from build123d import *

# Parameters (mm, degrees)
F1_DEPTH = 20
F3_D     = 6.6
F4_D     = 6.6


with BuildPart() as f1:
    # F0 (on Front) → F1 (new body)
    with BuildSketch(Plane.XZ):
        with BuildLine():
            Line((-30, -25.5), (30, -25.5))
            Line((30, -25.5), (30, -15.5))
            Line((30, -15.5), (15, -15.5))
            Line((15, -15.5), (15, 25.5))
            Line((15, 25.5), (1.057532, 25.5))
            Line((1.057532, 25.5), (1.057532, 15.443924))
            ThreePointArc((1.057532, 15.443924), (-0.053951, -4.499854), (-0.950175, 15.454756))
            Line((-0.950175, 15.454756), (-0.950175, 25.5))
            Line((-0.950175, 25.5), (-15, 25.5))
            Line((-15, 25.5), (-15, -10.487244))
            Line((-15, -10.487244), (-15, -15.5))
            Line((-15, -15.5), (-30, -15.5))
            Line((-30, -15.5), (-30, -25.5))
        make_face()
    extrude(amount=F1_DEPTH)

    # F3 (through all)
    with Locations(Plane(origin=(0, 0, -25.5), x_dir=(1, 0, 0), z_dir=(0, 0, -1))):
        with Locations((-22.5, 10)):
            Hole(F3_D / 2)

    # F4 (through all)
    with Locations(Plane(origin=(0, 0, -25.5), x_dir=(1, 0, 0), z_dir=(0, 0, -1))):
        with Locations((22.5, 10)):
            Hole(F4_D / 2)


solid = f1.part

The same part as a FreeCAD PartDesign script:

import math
import FreeCAD as App
import Part
import Sketcher

V = App.Vector
Q = App.Units.Quantity

doc = App.newDocument("Part")
body = doc.addObject("PartDesign::Body", "Body")

sketch1 = doc.addObject("Sketcher::SketchObject", "Sketch")
body.addObject(sketch1)
sketch1.AttachmentSupport = (doc.XZ_Plane, [""])
sketch1.MapMode = "FlatFace"
sketch1.addGeometry([
    Part.LineSegment(V(-30, -25.5, 0), V(30, -25.5, 0)),
    Part.LineSegment(V(30, -25.5, 0), V(30, -15.5, 0)),
    Part.LineSegment(V(30, -15.5, 0), V(15, -15.5, 0)),
    Part.LineSegment(V(15, -15.5, 0), V(15, 25.5, 0)),
    Part.LineSegment(V(15, 25.5, 0), V(1.1, 25.5, 0)),
    Part.LineSegment(V(1.1, 25.5, 0), V(1.1, 15.4, 0)),
    Part.ArcOfCircle(Part.Circle(V(0, 5.5, 0), V(0, 0, 1), 10), math.radians(95), math.radians(444)),
    Part.LineSegment(V(-1, 15.5, 0), V(-1, 25.5, 0)),
    Part.LineSegment(V(-1, 25.5, 0), V(-15, 25.5, 0)),
    Part.LineSegment(V(-15, 25.5, 0), V(-15, -15.5, 0)),
    Part.LineSegment(V(-15, -15.5, 0), V(-30, -15.5, 0)),
    Part.LineSegment(V(-30, -15.5, 0), V(-30, -25.5, 0)),
], False)
sketch1.addConstraint([
    Sketcher.Constraint("Coincident", 0, 2, 1, 1),
    Sketcher.Constraint("Coincident", 1, 2, 2, 1),
    Sketcher.Constraint("Coincident", 2, 2, 3, 1),
    Sketcher.Constraint("Coincident", 3, 2, 4, 1),
    Sketcher.Constraint("Coincident", 4, 2, 5, 1),
    Sketcher.Constraint("Coincident", 5, 2, 6, 2),
    Sketcher.Constraint("Coincident", 6, 1, 7, 1),
    Sketcher.Constraint("Coincident", 7, 2, 8, 1),
    Sketcher.Constraint("Coincident", 8, 2, 9, 1),
    Sketcher.Constraint("Coincident", 9, 2, 10, 1),
    Sketcher.Constraint("Coincident", 10, 2, 11, 1),
    Sketcher.Constraint("Coincident", 11, 2, 0, 1),
    Sketcher.Constraint("Horizontal", 0),
    Sketcher.Constraint("Vertical", 1),
    Sketcher.Constraint("Horizontal", 2),
    Sketcher.Constraint("Vertical", 3),
    Sketcher.Constraint("Horizontal", 4),
    Sketcher.Constraint("Vertical", 5),
    Sketcher.Constraint("Vertical", 7),
    Sketcher.Constraint("Horizontal", 8),
    Sketcher.Constraint("Vertical", 9),
    Sketcher.Constraint("Horizontal", 10),
    Sketcher.Constraint("Vertical", 11),
    Sketcher.Constraint("Symmetric", 3, 2, 8, 2, -2),
    Sketcher.Constraint("Symmetric", 1, 2, 10, 2, -2),
    Sketcher.Constraint("PointOnObject", 6, 3, -2),
    Sketcher.Constraint("Radius", 6, Q("10 mm")),
    Sketcher.Constraint("DistanceX", 0, 1, 0, 2, Q("60 mm")),
    Sketcher.Constraint("DistanceX", 2, 2, 2, 1, Q("15 mm")),
    Sketcher.Constraint("DistanceY", 1, 1, 1, 2, Q("10 mm")),
    Sketcher.Constraint("DistanceY", 3, 1, 3, 2, Q("41 mm")),
    Sketcher.Constraint("DistanceY", 0, 2, 6, 3, Q("31 mm")),
    Sketcher.Constraint("DistanceY", -1, 1, 6, 3, Q("5.5 mm")),
    Sketcher.Constraint("DistanceX", 4, 2, 4, 1, Q("13.942468 mm")),
    Sketcher.Constraint("DistanceX", 8, 2, 8, 1, Q("14.049825 mm")),
])
pad1 = doc.addObject("PartDesign::Pad", "Pad")
body.addObject(pad1)
pad1.Profile = sketch1
pad1.Length = 20

sketch2 = doc.addObject("Sketcher::SketchObject", "Sketch001")
body.addObject(sketch2)
sketch2.AttachmentSupport = (doc.XY_Plane, [""])
sketch2.MapMode = "FlatFace"
sketch2.AttachmentOffset = App.Placement(V(0, 0, -25.5), App.Rotation())
sketch2.addGeometry(Part.Circle(V(-22.5, -10, 0), V(0, 0, 1), 3.3), False)
sketch2.addConstraint([
    Sketcher.Constraint("Diameter", 0, Q("6.6 mm")),
    Sketcher.Constraint("DistanceY", 0, 3, -1, 1, Q("10 mm")),
    Sketcher.Constraint("DistanceX", 0, 3, -1, 1, Q("22.5 mm")),
])
doc.recompute()
hole = doc.addObject("PartDesign::Hole", "Hole")
body.addObject(hole)
hole.Profile = sketch2
hole.ThreadType = "None"
hole.Diameter = 6.6
hole.DepthType = "ThroughAll"
hole.Reversed = True

sketch3 = doc.addObject("Sketcher::SketchObject", "Sketch002")
body.addObject(sketch3)
sketch3.AttachmentSupport = (doc.XY_Plane, [""])
sketch3.MapMode = "FlatFace"
sketch3.AttachmentOffset = App.Placement(V(0, 0, -25.5), App.Rotation())
sketch3.addGeometry(Part.Circle(V(22.5, -10, 0), V(0, 0, 1), 3.3), False)
sketch3.addConstraint([
    Sketcher.Constraint("Diameter", 0, Q("6.6 mm")),
    Sketcher.Constraint("DistanceY", 0, 3, -1, 1, Q("10 mm")),
    Sketcher.Constraint("DistanceX", -1, 1, 0, 3, Q("22.5 mm")),
])
doc.recompute()
hole2 = doc.addObject("PartDesign::Hole", "Hole001")
body.addObject(hole2)
hole2.Profile = sketch3
hole2.ThreadType = "None"
hole2.Diameter = 6.6
hole2.DepthType = "ThroughAll"
hole2.Reversed = True

doc.recompute()
